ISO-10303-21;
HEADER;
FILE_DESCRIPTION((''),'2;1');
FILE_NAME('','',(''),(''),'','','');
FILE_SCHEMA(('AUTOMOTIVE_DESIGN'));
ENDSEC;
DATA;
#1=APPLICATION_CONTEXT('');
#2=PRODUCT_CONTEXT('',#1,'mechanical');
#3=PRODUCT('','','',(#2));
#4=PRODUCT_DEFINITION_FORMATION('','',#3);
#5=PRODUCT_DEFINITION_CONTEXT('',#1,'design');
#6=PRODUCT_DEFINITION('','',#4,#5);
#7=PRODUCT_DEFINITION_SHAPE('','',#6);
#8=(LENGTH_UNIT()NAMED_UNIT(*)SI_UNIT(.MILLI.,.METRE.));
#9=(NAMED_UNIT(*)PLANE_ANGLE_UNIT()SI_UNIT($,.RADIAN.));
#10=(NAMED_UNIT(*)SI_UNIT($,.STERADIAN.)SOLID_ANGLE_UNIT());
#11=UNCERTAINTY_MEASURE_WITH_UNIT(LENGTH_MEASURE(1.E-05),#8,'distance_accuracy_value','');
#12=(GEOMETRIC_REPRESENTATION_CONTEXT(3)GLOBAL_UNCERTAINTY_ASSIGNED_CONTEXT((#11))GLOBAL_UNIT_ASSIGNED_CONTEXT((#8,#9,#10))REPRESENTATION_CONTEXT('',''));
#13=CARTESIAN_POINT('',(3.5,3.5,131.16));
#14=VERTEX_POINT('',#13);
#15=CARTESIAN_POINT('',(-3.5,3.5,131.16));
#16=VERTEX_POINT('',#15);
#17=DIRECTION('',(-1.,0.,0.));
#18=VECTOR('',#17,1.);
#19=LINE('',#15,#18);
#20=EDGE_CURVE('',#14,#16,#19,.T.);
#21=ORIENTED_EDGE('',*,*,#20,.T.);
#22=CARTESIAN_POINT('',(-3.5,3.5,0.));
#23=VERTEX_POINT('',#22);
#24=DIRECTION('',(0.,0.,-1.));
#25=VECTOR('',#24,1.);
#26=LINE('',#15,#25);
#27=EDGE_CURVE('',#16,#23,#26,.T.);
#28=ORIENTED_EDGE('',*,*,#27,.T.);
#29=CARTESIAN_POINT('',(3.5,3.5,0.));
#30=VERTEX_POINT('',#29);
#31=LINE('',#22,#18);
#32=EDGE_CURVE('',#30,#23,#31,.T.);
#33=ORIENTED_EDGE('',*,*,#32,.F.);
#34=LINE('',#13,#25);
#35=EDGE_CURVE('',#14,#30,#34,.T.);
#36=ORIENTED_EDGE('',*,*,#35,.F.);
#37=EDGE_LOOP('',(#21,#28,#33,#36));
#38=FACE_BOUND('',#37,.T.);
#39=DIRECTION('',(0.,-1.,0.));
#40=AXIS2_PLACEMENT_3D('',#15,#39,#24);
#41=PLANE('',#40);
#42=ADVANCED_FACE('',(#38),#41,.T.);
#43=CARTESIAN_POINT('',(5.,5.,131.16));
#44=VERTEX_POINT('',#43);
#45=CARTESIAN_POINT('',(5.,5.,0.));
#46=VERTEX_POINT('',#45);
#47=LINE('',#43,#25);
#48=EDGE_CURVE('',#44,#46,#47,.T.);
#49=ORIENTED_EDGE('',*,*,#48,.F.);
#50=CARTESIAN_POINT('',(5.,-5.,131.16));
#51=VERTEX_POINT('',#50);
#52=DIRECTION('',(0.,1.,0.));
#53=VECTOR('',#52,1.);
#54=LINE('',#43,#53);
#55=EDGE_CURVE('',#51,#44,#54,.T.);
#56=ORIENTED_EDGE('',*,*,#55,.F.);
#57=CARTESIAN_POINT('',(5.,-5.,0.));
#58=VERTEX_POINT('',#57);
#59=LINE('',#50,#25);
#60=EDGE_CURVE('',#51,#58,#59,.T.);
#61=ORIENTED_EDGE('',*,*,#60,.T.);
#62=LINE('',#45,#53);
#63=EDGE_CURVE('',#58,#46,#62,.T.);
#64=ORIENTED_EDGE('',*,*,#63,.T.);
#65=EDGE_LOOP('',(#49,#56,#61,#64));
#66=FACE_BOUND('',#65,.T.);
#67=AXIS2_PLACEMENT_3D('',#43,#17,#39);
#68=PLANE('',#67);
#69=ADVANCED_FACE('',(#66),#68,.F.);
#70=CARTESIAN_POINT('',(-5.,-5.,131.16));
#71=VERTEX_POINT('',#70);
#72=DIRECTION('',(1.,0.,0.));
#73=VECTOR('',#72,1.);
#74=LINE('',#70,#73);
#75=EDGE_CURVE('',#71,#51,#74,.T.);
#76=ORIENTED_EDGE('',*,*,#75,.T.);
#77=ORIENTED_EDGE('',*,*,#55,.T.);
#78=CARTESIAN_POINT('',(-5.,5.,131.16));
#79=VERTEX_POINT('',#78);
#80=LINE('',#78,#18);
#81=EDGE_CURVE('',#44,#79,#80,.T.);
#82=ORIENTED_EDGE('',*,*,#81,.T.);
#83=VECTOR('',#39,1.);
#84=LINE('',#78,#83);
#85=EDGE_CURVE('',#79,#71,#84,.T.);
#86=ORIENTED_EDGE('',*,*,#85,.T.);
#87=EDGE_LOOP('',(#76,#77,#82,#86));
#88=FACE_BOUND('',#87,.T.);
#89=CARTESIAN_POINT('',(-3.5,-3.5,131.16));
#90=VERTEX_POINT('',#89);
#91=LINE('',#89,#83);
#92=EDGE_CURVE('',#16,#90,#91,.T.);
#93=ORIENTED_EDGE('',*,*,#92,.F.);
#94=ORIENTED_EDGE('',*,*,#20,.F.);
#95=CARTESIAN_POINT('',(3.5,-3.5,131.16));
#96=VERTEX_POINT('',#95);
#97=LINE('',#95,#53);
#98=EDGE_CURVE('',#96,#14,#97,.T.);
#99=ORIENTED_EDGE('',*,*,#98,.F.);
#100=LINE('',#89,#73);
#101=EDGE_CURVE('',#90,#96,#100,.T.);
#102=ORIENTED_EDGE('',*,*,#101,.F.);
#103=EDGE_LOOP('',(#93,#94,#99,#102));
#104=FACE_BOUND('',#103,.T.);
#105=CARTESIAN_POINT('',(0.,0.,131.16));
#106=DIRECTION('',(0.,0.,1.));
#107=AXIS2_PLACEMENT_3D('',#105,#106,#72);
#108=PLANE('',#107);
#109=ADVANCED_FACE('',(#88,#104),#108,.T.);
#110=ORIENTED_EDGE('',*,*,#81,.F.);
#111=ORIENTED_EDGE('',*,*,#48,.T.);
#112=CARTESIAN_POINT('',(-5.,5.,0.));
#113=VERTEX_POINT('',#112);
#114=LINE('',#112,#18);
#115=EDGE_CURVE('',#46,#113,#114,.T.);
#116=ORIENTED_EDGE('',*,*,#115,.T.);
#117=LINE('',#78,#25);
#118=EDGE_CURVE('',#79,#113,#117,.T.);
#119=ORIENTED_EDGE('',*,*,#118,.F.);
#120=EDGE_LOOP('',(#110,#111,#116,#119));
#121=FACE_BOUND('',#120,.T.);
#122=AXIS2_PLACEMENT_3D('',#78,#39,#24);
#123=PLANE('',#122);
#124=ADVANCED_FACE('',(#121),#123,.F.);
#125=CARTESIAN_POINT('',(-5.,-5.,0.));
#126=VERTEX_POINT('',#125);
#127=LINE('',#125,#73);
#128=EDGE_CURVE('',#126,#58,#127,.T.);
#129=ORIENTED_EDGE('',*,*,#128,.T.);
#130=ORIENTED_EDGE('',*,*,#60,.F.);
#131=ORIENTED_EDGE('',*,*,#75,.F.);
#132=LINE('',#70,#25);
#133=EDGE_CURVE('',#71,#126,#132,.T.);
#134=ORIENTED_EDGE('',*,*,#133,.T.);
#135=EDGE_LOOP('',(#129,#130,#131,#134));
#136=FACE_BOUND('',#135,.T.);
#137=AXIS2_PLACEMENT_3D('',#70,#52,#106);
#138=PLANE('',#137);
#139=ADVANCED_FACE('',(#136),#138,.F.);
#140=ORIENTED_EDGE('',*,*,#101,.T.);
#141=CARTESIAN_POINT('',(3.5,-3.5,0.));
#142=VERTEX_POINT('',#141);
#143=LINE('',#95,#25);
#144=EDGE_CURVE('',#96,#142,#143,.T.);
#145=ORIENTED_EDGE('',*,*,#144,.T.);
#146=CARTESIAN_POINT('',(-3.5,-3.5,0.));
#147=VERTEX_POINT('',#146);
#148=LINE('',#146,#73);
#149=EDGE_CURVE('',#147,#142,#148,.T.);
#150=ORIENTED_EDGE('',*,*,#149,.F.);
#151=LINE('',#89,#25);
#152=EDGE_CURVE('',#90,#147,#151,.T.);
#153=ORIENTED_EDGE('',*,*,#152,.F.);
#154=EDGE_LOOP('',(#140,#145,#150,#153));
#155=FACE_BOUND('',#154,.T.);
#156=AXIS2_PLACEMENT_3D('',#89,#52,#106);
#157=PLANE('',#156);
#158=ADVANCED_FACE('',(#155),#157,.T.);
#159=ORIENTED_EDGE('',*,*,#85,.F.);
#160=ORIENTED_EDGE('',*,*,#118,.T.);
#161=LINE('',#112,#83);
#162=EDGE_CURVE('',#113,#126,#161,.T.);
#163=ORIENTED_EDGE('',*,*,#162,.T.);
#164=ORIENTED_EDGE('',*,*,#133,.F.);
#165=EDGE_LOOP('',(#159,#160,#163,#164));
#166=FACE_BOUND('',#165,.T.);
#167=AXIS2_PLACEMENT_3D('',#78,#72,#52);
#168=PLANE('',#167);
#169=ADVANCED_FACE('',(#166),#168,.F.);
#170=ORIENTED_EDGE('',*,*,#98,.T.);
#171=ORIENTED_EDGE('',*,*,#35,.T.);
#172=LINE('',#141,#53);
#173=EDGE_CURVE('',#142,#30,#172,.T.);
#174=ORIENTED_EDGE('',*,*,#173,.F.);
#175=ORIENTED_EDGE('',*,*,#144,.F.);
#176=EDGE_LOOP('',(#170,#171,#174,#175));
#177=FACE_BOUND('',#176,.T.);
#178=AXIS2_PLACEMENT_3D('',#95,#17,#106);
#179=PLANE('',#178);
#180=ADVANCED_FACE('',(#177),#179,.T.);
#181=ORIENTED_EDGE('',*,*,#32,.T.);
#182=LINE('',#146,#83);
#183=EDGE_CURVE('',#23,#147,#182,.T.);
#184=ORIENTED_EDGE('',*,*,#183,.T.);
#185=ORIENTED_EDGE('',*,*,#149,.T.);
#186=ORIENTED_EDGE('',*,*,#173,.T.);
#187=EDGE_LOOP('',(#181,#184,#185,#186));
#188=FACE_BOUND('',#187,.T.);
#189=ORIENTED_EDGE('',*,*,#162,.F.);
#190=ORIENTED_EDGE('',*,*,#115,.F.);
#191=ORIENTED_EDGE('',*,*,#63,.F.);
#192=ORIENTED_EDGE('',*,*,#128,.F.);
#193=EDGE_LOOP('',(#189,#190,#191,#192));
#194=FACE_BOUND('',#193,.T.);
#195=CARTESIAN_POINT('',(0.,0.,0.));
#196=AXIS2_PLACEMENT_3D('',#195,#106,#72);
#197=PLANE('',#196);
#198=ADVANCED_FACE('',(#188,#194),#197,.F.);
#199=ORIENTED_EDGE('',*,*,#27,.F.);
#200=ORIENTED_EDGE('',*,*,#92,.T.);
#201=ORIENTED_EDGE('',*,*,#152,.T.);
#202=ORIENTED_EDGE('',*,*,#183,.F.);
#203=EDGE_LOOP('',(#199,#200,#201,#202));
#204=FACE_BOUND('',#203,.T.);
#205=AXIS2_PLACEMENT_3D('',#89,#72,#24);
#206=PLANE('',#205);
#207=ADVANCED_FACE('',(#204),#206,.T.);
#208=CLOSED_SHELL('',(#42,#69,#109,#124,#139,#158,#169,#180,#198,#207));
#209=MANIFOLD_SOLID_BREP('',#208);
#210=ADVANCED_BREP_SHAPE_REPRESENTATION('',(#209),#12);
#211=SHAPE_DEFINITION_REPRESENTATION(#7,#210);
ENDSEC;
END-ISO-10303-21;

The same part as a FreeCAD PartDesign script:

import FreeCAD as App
import Part
import Sketcher
from FreeCAD import Vector


def add_polygon(sketch, points):
    """Adds a closed chain of lines whose ends are joined by coincident constraints."""
    first, n = sketch.GeometryCount, len(points)
    for a, b in zip(points, points[1:] + points[:1]):
        sketch.addGeometry(Part.LineSegment(App.Vector(*a, 0), App.Vector(*b, 0)), False)
    for i in range(n):
        sketch.addConstraint(Sketcher.Constraint("Coincident", first + i, 2, first + (i + 1) % n, 1))

doc = App.newDocument("Part")
body = doc.addObject("PartDesign::Body", "Body")

# Sketch on XY plane
sketch1 = body.newObject("Sketcher::SketchObject", "Sketch")
sketch1.AttachmentSupport = (doc.getObject("XY_Plane"), [""])
sketch1.MapMode = "FlatFace"
add_polygon(sketch1, [(-5, 5), (-5, -5), (5, -5), (5, 5)])  # lines 0-3
add_polygon(sketch1, [(4, -4), (-4, -4), (-4, 4), (4, 4)])  # lines 4-7
sketch1.addConstraint([
    Sketcher.Constraint("Vertical", 0),
    Sketcher.Constraint("Horizontal", 1),
    Sketcher.Constraint("Vertical", 2),
    Sketcher.Constraint("Horizontal", 3),
    Sketcher.Constraint("Horizontal", 4),
    Sketcher.Constraint("Vertical", 5),
    Sketcher.Constraint("Horizontal", 6),
    Sketcher.Constraint("Vertical", 7),
    Sketcher.Constraint("Symmetric", 0, 2, 2, 2, -1, 1),
    Sketcher.Constraint("Symmetric", 4, 2, 6, 2, -1, 1),
    Sketcher.Constraint("Equal", 3, 0),
    Sketcher.Constraint("Equal", 6, 5),
    Sketcher.Constraint("DistanceX", 1, 1, 1, 2, 10.0),
    Sketcher.Constraint("DistanceX", 4, 2, 4, 1, 7.0),
])
pad1 = body.newObject("PartDesign::Pad", "Pad")
pad1.Profile = sketch1
pad1.Length = 131.16

doc.recompute()
